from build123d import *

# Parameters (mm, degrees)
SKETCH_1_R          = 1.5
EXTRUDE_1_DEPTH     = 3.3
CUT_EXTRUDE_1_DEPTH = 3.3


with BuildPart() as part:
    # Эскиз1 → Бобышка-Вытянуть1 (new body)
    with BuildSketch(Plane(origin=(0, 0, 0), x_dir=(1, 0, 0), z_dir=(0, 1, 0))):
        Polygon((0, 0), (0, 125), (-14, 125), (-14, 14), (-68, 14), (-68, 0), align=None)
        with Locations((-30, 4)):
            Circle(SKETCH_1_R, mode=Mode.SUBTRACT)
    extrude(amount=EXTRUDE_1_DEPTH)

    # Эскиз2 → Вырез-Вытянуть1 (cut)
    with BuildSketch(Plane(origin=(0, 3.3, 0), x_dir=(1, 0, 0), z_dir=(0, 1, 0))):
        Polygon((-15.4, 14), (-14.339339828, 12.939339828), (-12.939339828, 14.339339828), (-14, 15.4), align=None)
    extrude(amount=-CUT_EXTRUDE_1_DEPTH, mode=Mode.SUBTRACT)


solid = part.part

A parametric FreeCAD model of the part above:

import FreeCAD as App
import Part
import Sketcher
Q = App.Units.Quantity

doc = App.newDocument("Part")
body = doc.addObject("PartDesign::Body", "Body")

# Sketch on XZ plane
sketch1 = body.newObject("Sketcher::SketchObject", "Sketch")
sketch1.AttachmentSupport = (doc.getObject("XZ_Plane"), [""])
sketch1.MapMode = "FlatFace"
sketch1.addGeometry(Part.LineSegment(App.Vector(0, 0, 0), App.Vector(0, -125, 0)), False)
sketch1.addGeometry(Part.LineSegment(App.Vector(0, -125, 0), App.Vector(-14, -125, 0)), False)
sketch1.addGeometry(Part.LineSegment(App.Vector(-14, -125, 0), App.Vector(-14, -14, 0)), False)
sketch1.addGeometry(Part.LineSegment(App.Vector(-14, -14, 0), App.Vector(-68, -14, 0)), False)
sketch1.addGeometry(Part.LineSegment(App.Vector(-68, -14, 0), App.Vector(-68, 0, 0)), False)
sketch1.addGeometry(Part.LineSegment(App.Vector(-68, 0, 0), App.Vector(0, 0, 0)), False)
sketch1.addGeometry(Part.Circle(App.Vector(-30, -4, 0), App.Vector(0, 0, 1), 1.5), False)
sketch1.addConstraint(Sketcher.Constraint("Coincident", 0, 2, 1, 1))
sketch1.addConstraint(Sketcher.Constraint("Coincident", 1, 2, 2, 1))
sketch1.addConstraint(Sketcher.Constraint("Coincident", 2, 2, 3, 1))
sketch1.addConstraint(Sketcher.Constraint("Coincident", 3, 2, 4, 1))
sketch1.addConstraint(Sketcher.Constraint("Coincident", 4, 2, 5, 1))
sketch1.addConstraint(Sketcher.Constraint("Coincident", 5, 2, 0, 1))
sketch1.addConstraint(Sketcher.Constraint("Vertical", 0))
sketch1.addConstraint(Sketcher.Constraint("Horizontal", 1))
sketch1.addConstraint(Sketcher.Constraint("Vertical", 2))
sketch1.addConstraint(Sketcher.Constraint("Horizontal", 3))
sketch1.addConstraint(Sketcher.Constraint("Vertical", 4))
sketch1.addConstraint(Sketcher.Constraint("Horizontal", 5))
sketch1.addConstraint(Sketcher.Constraint("Coincident", 5, 2, -1, 1))
sketch1.addConstraint(Sketcher.Constraint("Equal", 1, 4))
sketch1.addConstraint(Sketcher.Constraint("Diameter", 6, 3.0))
sketch1.addConstraint(Sketcher.Constraint("DistanceX", 1, 2, 1, 1, 14.0))
sketch1.addConstraint(Sketcher.Constraint("DistanceX", 3, 2, 3, 1, 54.0))
sketch1.addConstraint(Sketcher.Constraint("DistanceY", 0, 2, 0, 1, 125.0))
sketch1.addConstraint(Sketcher.Constraint("DistanceX", 6, 3, -1, 1, 30.0))
sketch1.addConstraint(Sketcher.Constraint("DistanceY", 6, 3, -1, 1, 4.0))
pad1 = body.newObject("PartDesign::Pad", "Pad")
pad1.Profile = sketch1
pad1.Length = 3.3
pad1.Reversed = True

# Sketch on XZ plane
sketch2 = body.newObject("Sketcher::SketchObject", "Sketch001")
sketch2.AttachmentSupport = (doc.getObject("XZ_Plane"), [""])
sketch2.MapMode = "FlatFace"
sketch2.AttachmentOffset = App.Placement(App.Vector(0, 0, -3.3), App.Rotation())
sketch2.addGeometry(Part.LineSegment(App.Vector(-15.4, -14, 0), App.Vector(-14.3, -12.9, 0)), False)
sketch2.addGeometry(Part.LineSegment(App.Vector(-14.3, -12.9, 0), App.Vector(-12.9, -14.3, 0)), False)
sketch2.addGeometry(Part.LineSegment(App.Vector(-12.9, -14.3, 0), App.Vector(-14, -15.4, 0)), False)
sketch2.addGeometry(Part.LineSegment(App.Vector(-14, -15.4, 0), App.Vector(-15.4, -14, 0)), False)
sketch2.addConstraint(Sketcher.Constraint("Coincident", 0, 2, 1, 1))
sketch2.addConstraint(Sketcher.Constraint("Coincident", 1, 2, 2, 1))
sketch2.addConstraint(Sketcher.Constraint("Coincident", 2, 2, 3, 1))
sketch2.addConstraint(Sketcher.Constraint("Coincident", 3, 2, 0, 1))
sketch2.addConstraint(Sketcher.Constraint("Perpendicular", 0, 1))
sketch2.addConstraint(Sketcher.Constraint("Perpendicular", 1, 2))
sketch2.addConstraint(Sketcher.Constraint("Perpendicular", 2, 3))
sketch2.addConstraint(Sketcher.Constraint("Angle", 0, Q("45 deg")))
sketch2.addConstraint(Sketcher.Constraint("DistanceX", 2, 2, -1, 1, 14.0))
sketch2.addConstraint(Sketcher.Constraint("DistanceY", 3, 2, -1, 1, 14.0))
sketch2.addConstraint(Sketcher.Constraint("Distance", 0, 1.5))
sketch2.addConstraint(Sketcher.Constraint("DistanceY", 2, 2, -1, 1, 15.4))
pocket1 = body.newObject("PartDesign::Pocket", "Pocket")
pocket1.Profile = sketch2
pocket1.Length = 3.3
pocket1.Reversed = True

doc.recompute()
